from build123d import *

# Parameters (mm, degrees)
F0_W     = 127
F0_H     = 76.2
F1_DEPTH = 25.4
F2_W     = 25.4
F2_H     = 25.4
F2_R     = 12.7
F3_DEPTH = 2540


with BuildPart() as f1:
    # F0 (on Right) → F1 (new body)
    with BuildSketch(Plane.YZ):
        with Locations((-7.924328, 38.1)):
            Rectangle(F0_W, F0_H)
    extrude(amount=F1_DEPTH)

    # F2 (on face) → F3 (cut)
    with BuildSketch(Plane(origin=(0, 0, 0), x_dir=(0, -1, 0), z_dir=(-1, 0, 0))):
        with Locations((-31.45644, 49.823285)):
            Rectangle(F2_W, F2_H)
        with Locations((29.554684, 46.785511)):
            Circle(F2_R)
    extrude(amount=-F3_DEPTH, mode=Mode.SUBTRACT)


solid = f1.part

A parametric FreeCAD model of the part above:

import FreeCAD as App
import Part
import Sketcher
Q = App.Units.Quantity


def add_polygon(sketch, points):
    """Adds a closed chain of lines whose ends are joined by coincident constraints."""
    first, n = sketch.GeometryCount, len(points)
    for a, b in zip(points, points[1:] + points[:1]):
        sketch.addGeometry(Part.LineSegment(App.Vector(*a, 0), App.Vector(*b, 0)), False)
    for i in range(n):
        sketch.addConstraint(Sketcher.Constraint("Coincident", first + i, 2, first + (i + 1) % n, 1))

doc = App.newDocument("Part")
body = doc.addObject("PartDesign::Body", "Body")

sketch1 = body.newObject("Sketcher::SketchObject", "Sketch")
sketch1.AttachmentSupport = (doc.getObject("YZ_Plane"), [""])
sketch1.MapMode = "FlatFace"
add_polygon(sketch1, [(-71, 76), (-71, 0), (56, 0), (56, 76)])
sketch1.addConstraint(Sketcher.Constraint("Vertical", 0))
sketch1.addConstraint(Sketcher.Constraint("Horizontal", 1))
sketch1.addConstraint(Sketcher.Constraint("Vertical", 2))
sketch1.addConstraint(Sketcher.Constraint("Horizontal", 3))
sketch1.addConstraint(Sketcher.Constraint("PointOnObject", 0, 2, -1))
sketch1.addConstraint(Sketcher.Constraint("DistanceX", 1, 1, 1, 2, Q("5 in")))
sketch1.addConstraint(Sketcher.Constraint("DistanceY", 0, 2, 0, 1, Q("3 in")))
sketch1.addConstraint(Sketcher.Constraint("DistanceX", 0, 2, -1, 1, Q("71.424328 mm")))
pad1 = body.newObject("PartDesign::Pad", "Pad")
pad1.Profile = sketch1
pad1.Length = Q("1 in")

sketch2 = body.newObject("Sketcher::SketchObject", "Sketch001")
sketch2.AttachmentSupport = (doc.getObject("YZ_Plane"), [""])
sketch2.MapMode = "FlatFace"
add_polygon(sketch2, [(44, 63), (44, 37), (19, 37), (19, 63)])
sketch2.addGeometry(Part.Circle(App.Vector(-30, 47, 0), App.Vector(0, 0, 1), 13), False)
sketch2.addConstraint(Sketcher.Constraint("Vertical", 0))
sketch2.addConstraint(Sketcher.Constraint("Horizontal", 1))
sketch2.addConstraint(Sketcher.Constraint("Vertical", 2))
sketch2.addConstraint(Sketcher.Constraint("Horizontal", 3))
sketch2.addConstraint(Sketcher.Constraint("Equal", 3, 0))
sketch2.addConstraint(Sketcher.Constraint("Diameter", 4, Q("1 in")))
sketch2.addConstraint(Sketcher.Constraint("DistanceX", 1, 2, 1, 1, Q("1 in")))
sketch2.addConstraint(Sketcher.Constraint("DistanceY", -1, 1, 4, 3, Q("46.785511 mm")))
sketch2.addConstraint(Sketcher.Constraint("DistanceX", -1, 1, 0, 2, Q("44.15644 mm")))
sketch2.addConstraint(Sketcher.Constraint("DistanceX", 4, 3, -1, 1, Q("29.554684 mm")))
sketch2.addConstraint(Sketcher.Constraint("DistanceY", -1, 1, 0, 2, Q("37.123285 mm")))
pocket1 = body.newObject("PartDesign::Pocket", "Pocket")
pocket1.Profile = sketch2
pocket1.Length = Q("100 in")
pocket1.Reversed = True

doc.recompute()
